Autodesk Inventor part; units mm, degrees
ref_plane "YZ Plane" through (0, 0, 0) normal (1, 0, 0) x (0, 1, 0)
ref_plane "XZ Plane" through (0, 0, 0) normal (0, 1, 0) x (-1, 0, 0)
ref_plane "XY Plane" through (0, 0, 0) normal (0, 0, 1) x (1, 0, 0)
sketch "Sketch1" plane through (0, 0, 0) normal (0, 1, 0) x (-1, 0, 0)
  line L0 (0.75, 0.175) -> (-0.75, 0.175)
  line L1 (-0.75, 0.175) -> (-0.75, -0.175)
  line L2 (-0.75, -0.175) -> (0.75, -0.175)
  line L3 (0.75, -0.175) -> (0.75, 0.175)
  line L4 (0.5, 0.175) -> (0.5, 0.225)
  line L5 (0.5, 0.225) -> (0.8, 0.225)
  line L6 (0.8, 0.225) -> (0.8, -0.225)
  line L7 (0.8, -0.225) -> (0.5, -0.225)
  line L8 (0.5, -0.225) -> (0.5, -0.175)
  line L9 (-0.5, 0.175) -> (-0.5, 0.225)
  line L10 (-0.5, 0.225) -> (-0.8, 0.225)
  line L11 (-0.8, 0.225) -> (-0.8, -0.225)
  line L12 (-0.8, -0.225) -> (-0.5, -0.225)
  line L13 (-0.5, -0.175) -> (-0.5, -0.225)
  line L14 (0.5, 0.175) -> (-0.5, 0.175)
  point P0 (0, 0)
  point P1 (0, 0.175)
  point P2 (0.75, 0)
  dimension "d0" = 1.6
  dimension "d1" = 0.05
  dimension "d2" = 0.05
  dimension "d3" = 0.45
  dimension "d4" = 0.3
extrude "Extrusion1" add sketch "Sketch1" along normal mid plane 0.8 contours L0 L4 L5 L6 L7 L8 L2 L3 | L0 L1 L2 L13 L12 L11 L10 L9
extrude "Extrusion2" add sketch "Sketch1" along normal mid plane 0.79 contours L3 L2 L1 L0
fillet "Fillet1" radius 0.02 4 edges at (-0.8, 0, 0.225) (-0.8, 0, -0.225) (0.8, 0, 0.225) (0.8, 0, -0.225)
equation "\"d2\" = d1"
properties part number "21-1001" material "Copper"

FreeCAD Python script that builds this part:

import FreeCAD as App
import Part
import Sketcher
from FreeCAD import Vector
Q = App.Units.Quantity


def edges_at(feature, points):
    """Names of the edges that pass closest to the given points."""
    edges = feature.Shape.Edges
    near = lambda p: min(range(len(edges)), key=lambda i: edges[i].distToShape(Part.Vertex(*p))[0])
    return sorted({f"Edge{near(p) + 1}" for p in points})


def add_polygon(sketch, points):
    """Adds a closed chain of lines whose ends are joined by coincident constraints."""
    first, n = sketch.GeometryCount, len(points)
    for a, b in zip(points, points[1:] + points[:1]):
        sketch.addGeometry(Part.LineSegment(App.Vector(*a, 0), App.Vector(*b, 0)), False)
    for i in range(n):
        sketch.addConstraint(Sketcher.Constraint("Coincident", first + i, 2, first + (i + 1) % n, 1))

doc = App.newDocument("Part")
body = doc.addObject("PartDesign::Body", "Body")
body.AllowCompound = True

sketch1 = body.newObject("Sketcher::SketchObject", "Sketch")
sketch1.AttachmentSupport = (doc.getObject("XZ_Plane"), [""])
sketch1.MapMode = "FlatFace"
add_polygon(sketch1, [(-0.5, 0.17), (-0.75, 0.17), (-0.75, -0.17), (-0.5, -0.17), (-0.5, -0.23), (-0.8, -0.23), (-0.8, 0.23), (-0.5, 0.23)])
add_polygon(sketch1, [(0.75, 0.17), (0.5, 0.17), (0.5, 0.23), (0.8, 0.23), (0.8, -0.23), (0.5, -0.23), (0.5, -0.17), (0.75, -0.17)])
sketch1.addConstraint(Sketcher.Constraint("Horizontal", 0))
sketch1.addConstraint(Sketcher.Constraint("Vertical", 1))
sketch1.addConstraint(Sketcher.Constraint("Horizontal", 2))
sketch1.addConstraint(Sketcher.Constraint("Vertical", 3))
sketch1.addConstraint(Sketcher.Constraint("Horizontal", 4))
sketch1.addConstraint(Sketcher.Constraint("Vertical", 5))
sketch1.addConstraint(Sketcher.Constraint("Horizontal", 6))
sketch1.addConstraint(Sketcher.Constraint("Vertical", 7))
sketch1.addConstraint(Sketcher.Constraint("Horizontal", 8))
sketch1.addConstraint(Sketcher.Constraint("Vertical", 9))
sketch1.addConstraint(Sketcher.Constraint("Horizontal", 10))
sketch1.addConstraint(Sketcher.Constraint("Vertical", 11))
sketch1.addConstraint(Sketcher.Constraint("Horizontal", 12))
sketch1.addConstraint(Sketcher.Constraint("Vertical", 13))
sketch1.addConstraint(Sketcher.Constraint("Horizontal", 14))
sketch1.addConstraint(Sketcher.Constraint("Vertical", 15))
sketch1.addConstraint(Sketcher.Constraint("Symmetric", 2, 2, 8, 2, -1, 1))
sketch1.addConstraint(Sketcher.Constraint("Symmetric", 4, 2, 10, 2, -1, 1))
sketch1.addConstraint(Sketcher.Constraint("Symmetric", 6, 2, 12, 2, -1, 1))
sketch1.addConstraint(Sketcher.Constraint("Symmetric", 0, 2, 14, 2, -1, 1))
sketch1.addConstraint(Sketcher.Constraint("Symmetric", 7, 2, 8, 2, -2))
sketch1.addConstraint(Sketcher.Constraint("Horizontal", 6, 2, 9, 2))
sketch1.addConstraint(Sketcher.Constraint("DistanceX", 4, 2, 4, 1, Q("0.3 mm")))
sketch1.addConstraint(Sketcher.Constraint("DistanceY", 3, 2, 3, 1, Q("0.05 mm")))
sketch1.addConstraint(Sketcher.Constraint("DistanceY", 5, 1, 5, 2, Q("0.45 mm")))
sketch1.addConstraint(Sketcher.Constraint("DistanceX", 4, 2, 1, 2, Q("0.05 mm")))
sketch1.addConstraint(Sketcher.Constraint("DistanceX", 7, 2, 8, 2, Q("1 mm")))
pad1 = body.newObject("PartDesign::Pad", "Pad")
pad1.Profile = sketch1
pad1.Length = 0.8
pad1.Midplane = True

sketch2 = body.newObject("Sketcher::SketchObject", "Sketch001")
sketch2.AttachmentSupport = (doc.getObject("XZ_Plane"), [""])
sketch2.MapMode = "FlatFace"
add_polygon(sketch2, [(-0.75, -0.17), (-0.75, 0.17), (0.75, 0.17), (0.75, -0.17)])
sketch2.addConstraint(Sketcher.Constraint("Vertical", 0))
sketch2.addConstraint(Sketcher.Constraint("Horizontal", 1))
sketch2.addConstraint(Sketcher.Constraint("Vertical", 2))
sketch2.addConstraint(Sketcher.Constraint("Horizontal", 3))
sketch2.addConstraint(Sketcher.Constraint("Symmetric", 0, 2, 2, 2, -1, 1))
sketch2.addConstraint(Sketcher.Constraint("DistanceX", 1, 1, 1, 2, Q("1.5 mm")))
sketch2.addConstraint(Sketcher.Constraint("DistanceY", 0, 1, 0, 2, Q("0.35 mm")))
pad2 = body.newObject("PartDesign::Pad", "Pad001")
pad2.Profile = sketch2
pad2.Length = 0.79
pad2.Midplane = True
doc.recompute()

fillet = body.newObject("PartDesign::Fillet", "Fillet")
fillet.Base = (pad2, edges_at(pad2, [
    (-0.8, 0, 0.225),
    (-0.8, 0, -0.225),
    (0.8, 0, 0.225),
    (0.8, 0, -0.225),
]))
fillet.Radius = 0.02

doc.recompute()
